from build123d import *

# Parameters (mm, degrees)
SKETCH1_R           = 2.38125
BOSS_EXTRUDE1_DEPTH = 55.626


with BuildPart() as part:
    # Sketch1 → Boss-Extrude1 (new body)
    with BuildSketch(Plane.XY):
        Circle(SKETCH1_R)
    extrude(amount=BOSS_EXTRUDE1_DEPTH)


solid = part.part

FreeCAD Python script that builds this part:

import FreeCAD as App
import Part
import Sketcher
from FreeCAD import Vector
Q = App.Units.Quantity

doc = App.newDocument("Part")
body = doc.addObject("PartDesign::Body", "Body")

# Sketch on XY plane
sketch1 = body.newObject("Sketcher::SketchObject", "Sketch")
sketch1.AttachmentSupport = (doc.getObject("XY_Plane"), [""])
sketch1.MapMode = "FlatFace"
sketch1.addGeometry(Part.Circle(Vector(0, 0, 0), Vector(0, 0, 1), 2.4), False)
sketch1.addConstraint(Sketcher.Constraint("Coincident", 0, 3, -1, 1))
sketch1.addConstraint(Sketcher.Constraint("Diameter", 0, Q("0.1875 in")))
pad1 = body.newObject("PartDesign::Pad", "Pad")
pad1.Profile = sketch1
pad1.Length = Q("2.19 in")

doc.recompute()
